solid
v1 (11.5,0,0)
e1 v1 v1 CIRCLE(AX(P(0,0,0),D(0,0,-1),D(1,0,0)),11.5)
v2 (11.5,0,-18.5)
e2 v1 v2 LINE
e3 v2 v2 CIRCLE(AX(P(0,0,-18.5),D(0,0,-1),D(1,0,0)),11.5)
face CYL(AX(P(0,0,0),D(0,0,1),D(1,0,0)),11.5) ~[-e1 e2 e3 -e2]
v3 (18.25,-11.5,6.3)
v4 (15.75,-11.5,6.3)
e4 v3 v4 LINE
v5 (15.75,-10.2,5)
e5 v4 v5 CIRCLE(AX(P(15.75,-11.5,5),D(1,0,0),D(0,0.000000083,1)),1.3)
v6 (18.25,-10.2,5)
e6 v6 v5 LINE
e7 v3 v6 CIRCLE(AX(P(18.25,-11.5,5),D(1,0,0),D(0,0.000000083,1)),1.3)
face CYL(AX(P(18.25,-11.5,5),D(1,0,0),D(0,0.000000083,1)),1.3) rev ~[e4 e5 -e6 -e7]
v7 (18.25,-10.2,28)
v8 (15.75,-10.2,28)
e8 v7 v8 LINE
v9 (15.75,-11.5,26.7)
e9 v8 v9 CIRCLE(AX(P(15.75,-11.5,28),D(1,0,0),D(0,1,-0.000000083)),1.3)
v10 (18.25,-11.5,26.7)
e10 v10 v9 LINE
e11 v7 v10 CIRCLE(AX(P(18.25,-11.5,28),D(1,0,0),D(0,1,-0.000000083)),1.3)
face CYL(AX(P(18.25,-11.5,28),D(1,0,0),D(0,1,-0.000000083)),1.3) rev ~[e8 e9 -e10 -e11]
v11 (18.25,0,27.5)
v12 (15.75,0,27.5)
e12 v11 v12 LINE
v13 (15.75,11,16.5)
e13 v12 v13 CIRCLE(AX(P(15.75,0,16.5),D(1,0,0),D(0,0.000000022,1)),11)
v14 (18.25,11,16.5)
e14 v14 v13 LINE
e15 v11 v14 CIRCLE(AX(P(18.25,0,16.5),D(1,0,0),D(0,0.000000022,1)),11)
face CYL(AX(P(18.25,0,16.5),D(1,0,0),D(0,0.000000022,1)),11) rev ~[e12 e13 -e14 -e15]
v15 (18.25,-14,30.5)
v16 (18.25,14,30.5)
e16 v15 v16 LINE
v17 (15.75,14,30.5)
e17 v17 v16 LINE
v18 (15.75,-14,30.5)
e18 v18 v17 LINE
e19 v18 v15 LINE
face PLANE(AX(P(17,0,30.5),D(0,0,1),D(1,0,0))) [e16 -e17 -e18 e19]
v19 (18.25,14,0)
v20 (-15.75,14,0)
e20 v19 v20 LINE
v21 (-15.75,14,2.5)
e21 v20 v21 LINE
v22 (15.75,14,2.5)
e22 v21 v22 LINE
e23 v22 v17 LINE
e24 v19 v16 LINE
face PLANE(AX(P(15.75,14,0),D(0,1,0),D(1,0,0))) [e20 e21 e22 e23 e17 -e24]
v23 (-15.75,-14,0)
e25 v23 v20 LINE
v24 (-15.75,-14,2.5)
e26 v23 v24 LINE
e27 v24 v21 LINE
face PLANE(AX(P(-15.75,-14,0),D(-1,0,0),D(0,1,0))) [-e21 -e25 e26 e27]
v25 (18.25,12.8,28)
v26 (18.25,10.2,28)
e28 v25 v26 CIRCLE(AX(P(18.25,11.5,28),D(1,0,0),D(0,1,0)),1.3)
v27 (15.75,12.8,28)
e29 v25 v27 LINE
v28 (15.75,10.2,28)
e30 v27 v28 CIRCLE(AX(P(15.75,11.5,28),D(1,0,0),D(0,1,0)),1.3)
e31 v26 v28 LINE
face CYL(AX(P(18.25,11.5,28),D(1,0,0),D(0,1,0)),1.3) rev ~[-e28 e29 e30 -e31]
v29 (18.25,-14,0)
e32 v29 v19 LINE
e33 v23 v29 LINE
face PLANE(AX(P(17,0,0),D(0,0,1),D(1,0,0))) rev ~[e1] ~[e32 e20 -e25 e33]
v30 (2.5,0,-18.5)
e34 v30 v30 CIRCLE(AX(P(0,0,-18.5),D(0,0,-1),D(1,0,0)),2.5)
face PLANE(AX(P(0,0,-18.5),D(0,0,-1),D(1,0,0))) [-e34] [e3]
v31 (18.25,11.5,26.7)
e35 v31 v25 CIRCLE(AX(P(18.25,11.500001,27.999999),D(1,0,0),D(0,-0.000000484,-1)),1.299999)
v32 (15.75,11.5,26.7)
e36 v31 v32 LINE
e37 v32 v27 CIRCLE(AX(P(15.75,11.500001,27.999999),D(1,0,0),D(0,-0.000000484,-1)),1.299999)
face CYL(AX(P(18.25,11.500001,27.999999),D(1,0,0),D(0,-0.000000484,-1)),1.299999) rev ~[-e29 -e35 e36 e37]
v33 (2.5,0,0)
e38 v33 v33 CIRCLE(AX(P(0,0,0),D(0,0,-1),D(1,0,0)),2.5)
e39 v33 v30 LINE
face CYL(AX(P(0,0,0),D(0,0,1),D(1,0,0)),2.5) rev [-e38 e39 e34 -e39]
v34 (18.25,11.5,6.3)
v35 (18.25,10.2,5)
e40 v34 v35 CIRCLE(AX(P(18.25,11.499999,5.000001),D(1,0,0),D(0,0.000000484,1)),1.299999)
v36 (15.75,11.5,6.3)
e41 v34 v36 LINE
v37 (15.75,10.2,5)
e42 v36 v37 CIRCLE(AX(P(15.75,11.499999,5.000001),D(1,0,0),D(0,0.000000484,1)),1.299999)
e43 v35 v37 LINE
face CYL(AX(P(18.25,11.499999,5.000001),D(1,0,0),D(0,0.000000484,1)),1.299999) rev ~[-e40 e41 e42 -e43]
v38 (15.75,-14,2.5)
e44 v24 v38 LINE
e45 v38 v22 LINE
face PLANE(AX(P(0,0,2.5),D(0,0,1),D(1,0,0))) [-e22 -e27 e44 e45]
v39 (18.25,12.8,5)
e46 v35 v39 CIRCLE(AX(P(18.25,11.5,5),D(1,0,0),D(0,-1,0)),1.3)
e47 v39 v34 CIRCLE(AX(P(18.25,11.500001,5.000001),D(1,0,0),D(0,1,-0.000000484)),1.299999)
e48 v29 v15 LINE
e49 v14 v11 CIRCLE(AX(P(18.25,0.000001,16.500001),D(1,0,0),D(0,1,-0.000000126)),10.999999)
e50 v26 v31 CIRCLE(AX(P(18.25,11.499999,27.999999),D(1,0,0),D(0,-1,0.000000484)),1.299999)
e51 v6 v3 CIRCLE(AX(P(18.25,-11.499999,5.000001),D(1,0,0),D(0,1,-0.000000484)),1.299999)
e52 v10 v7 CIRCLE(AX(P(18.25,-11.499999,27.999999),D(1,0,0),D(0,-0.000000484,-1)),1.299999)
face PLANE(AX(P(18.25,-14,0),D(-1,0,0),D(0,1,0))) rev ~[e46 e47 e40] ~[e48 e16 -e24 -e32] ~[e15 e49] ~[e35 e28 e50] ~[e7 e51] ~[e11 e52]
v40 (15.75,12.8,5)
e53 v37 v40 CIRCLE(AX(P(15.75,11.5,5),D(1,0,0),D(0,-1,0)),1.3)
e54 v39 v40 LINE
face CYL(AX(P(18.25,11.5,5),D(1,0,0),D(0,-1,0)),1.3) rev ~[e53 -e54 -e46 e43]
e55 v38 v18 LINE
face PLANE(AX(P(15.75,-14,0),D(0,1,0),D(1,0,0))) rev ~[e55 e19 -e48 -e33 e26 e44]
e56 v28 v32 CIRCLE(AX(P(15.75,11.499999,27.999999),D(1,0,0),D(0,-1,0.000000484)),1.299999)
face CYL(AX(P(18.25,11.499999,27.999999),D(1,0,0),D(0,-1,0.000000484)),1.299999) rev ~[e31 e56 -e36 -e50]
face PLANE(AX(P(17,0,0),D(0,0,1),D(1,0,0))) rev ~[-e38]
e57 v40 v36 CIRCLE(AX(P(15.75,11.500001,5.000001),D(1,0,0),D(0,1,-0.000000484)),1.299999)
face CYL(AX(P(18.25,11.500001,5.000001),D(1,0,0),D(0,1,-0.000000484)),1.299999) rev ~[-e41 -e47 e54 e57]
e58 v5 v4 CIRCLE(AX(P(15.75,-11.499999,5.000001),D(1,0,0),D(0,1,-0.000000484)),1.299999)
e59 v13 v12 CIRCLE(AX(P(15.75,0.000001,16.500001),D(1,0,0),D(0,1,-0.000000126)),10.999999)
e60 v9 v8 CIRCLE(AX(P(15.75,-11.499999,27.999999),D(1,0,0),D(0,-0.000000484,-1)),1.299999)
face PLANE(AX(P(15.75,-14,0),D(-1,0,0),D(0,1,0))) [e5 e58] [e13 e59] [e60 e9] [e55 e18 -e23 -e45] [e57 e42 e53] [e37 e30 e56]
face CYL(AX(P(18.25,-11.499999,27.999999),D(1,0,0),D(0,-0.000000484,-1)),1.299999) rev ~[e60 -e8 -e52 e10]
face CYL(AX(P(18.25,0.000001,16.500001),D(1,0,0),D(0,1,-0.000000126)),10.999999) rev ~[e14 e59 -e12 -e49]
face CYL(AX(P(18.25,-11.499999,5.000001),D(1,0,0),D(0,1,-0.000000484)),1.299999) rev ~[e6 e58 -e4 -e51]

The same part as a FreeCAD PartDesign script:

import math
import FreeCAD as App
import Part
import Sketcher
Q = App.Units.Quantity


def add_polygon(sketch, points):
    """Adds a closed chain of lines whose ends are joined by coincident constraints."""
    first, n = sketch.GeometryCount, len(points)
    for a, b in zip(points, points[1:] + points[:1]):
        sketch.addGeometry(Part.LineSegment(App.Vector(*a, 0), App.Vector(*b, 0)), False)
    for i in range(n):
        sketch.addConstraint(Sketcher.Constraint("Coincident", first + i, 2, first + (i + 1) % n, 1))

doc = App.newDocument("Part")
body = doc.addObject("PartDesign::Body", "Body")

sketch1 = body.newObject("Sketcher::SketchObject", "Sketch")
sketch1.AttachmentSupport = (doc.getObject("XY_Plane"), [""])
sketch1.MapMode = "FlatFace"
add_polygon(sketch1, [(-16, 14), (-16, -14), (16, -14), (16, 14)])
sketch1.addConstraint([
    Sketcher.Constraint("Vertical", 0),
    Sketcher.Constraint("Horizontal", 1),
    Sketcher.Constraint("Vertical", 2),
    Sketcher.Constraint("Horizontal", 3),
    Sketcher.Constraint("Symmetric", 0, 2, 2, 2, -1, 1),
    Sketcher.Constraint("DistanceY", 0, 2, 0, 1, Q("28 mm")),
    Sketcher.Constraint("DistanceX", 1, 1, 1, 2, Q("31.5 mm")),
])
pad1 = body.newObject("PartDesign::Pad", "Pad")
pad1.Profile = sketch1
pad1.Length = 2.5

sketch2 = body.newObject("Sketcher::SketchObject", "Sketch001")
sketch2.AttachmentSupport = (doc.getObject("XY_Plane"), [""])
sketch2.MapMode = "FlatFace"
add_polygon(sketch2, [(15.8, 14), (15.8, -14), (18.2, -14), (18.2, 14)])
sketch2.addConstraint([
    Sketcher.Constraint("Vertical", 0),
    Sketcher.Constraint("Horizontal", 1),
    Sketcher.Constraint("Vertical", 2),
    Sketcher.Constraint("Horizontal", 3),
    Sketcher.Constraint("DistanceY", 0, 2, 0, 1, Q("28 mm")),
    Sketcher.Constraint("DistanceX", 1, 1, 1, 2, Q("2.5 mm")),
    Sketcher.Constraint("DistanceY", 0, 2, -1, 1, Q("14 mm")),
    Sketcher.Constraint("DistanceX", -1, 1, 0, 2, Q("15.75 mm")),
])
pad2 = body.newObject("PartDesign::Pad", "Pad001")
pad2.Profile = sketch2
pad2.Length = 30.5

sketch3 = body.newObject("Sketcher::SketchObject", "Sketch002")
sketch3.AttachmentSupport = (doc.getObject("YZ_Plane"), [""])
sketch3.MapMode = "FlatFace"
sketch3.AttachmentOffset = App.Placement(App.Vector(0, 0, 18.25), App.Rotation())
sketch3.addGeometry([
    Part.ArcOfCircle(Part.Circle(App.Vector(-11.5, 28, 0), App.Vector(0, 0, 1), 1.3), math.radians(0), math.radians(270)),
    Part.ArcOfCircle(Part.Circle(App.Vector(-11.5, 28, 0), App.Vector(0, 0, 1), 1.3), math.radians(-90), math.radians(0)),
    Part.ArcOfCircle(Part.Circle(App.Vector(-11.5, 5, 0), App.Vector(0, 0, 1), 1.3), math.radians(90), math.radians(360)),
    Part.ArcOfCircle(Part.Circle(App.Vector(-11.5, 5, 0), App.Vector(0, 0, 1), 1.3), math.radians(0), math.radians(90)),
    Part.ArcOfCircle(Part.Circle(App.Vector(11.5, 5, 0), App.Vector(0, 0, 1), 1.3), math.radians(90), math.radians(180)),
    Part.ArcOfCircle(Part.Circle(App.Vector(11.5, 5, 0), App.Vector(0, 0, 1), 1.3), math.radians(180), math.radians(360)),
    Part.ArcOfCircle(Part.Circle(App.Vector(11.5, 5, 0), App.Vector(0, 0, 1), 1.3), math.radians(0), math.radians(90)),
    Part.ArcOfCircle(Part.Circle(App.Vector(0, 16.5, 0), App.Vector(0, 0, 1), 11), math.radians(0), math.radians(90)),
    Part.ArcOfCircle(Part.Circle(App.Vector(0, 16.5, 0), App.Vector(0, 0, 1), 11), math.radians(90), math.radians(360)),
    Part.ArcOfCircle(Part.Circle(App.Vector(11.5, 28, 0), App.Vector(0, 0, 1), 1.3), math.radians(180), math.radians(270)),
    Part.ArcOfCircle(Part.Circle(App.Vector(11.5, 28, 0), App.Vector(0, 0, 1), 1.3), math.radians(-90), math.radians(0)),
    Part.ArcOfCircle(Part.Circle(App.Vector(11.5, 28, 0), App.Vector(0, 0, 1), 1.3), math.radians(0), math.radians(180)),
], False)
sketch3.addConstraint([
    Sketcher.Constraint("Tangent", 0, 1, 1, 2),
    Sketcher.Constraint("Coincident", 1, 1, 0, 2),
    Sketcher.Constraint("Tangent", 2, 1, 3, 2),
    Sketcher.Constraint("Coincident", 3, 1, 2, 2),
    Sketcher.Constraint("Tangent", 4, 2, 5, 1),
    Sketcher.Constraint("Tangent", 5, 2, 6, 1),
    Sketcher.Constraint("Tangent", 6, 2, 4, 1),
    Sketcher.Constraint("Tangent", 7, 1, 8, 2),
    Sketcher.Constraint("Coincident", 8, 1, 7, 2),
    Sketcher.Constraint("Tangent", 9, 2, 10, 1),
    Sketcher.Constraint("Tangent", 10, 2, 11, 1),
    Sketcher.Constraint("Tangent", 11, 2, 9, 1),
    Sketcher.Constraint("Equal", 1, 2),
    Sketcher.Constraint("Equal", 3, 4),
    Sketcher.Constraint("Equal", 6, 9),
    Sketcher.Constraint("Symmetric", 2, 3, 4, 3, -2),
    Sketcher.Constraint("Symmetric", 0, 3, 9, 3, -2),
    Sketcher.Constraint("PointOnObject", 7, 3, -2),
    Sketcher.Constraint("PointOnObject", 8, 1, -2),
    Sketcher.Constraint("Horizontal", 11, 3, 0, 1),
    Sketcher.Constraint("Horizontal", 6, 3, 3, 1),
    Sketcher.Constraint("Horizontal", 3, 1, 4, 2),
    Sketcher.Constraint("Horizontal", 4, 2, 5, 2),
    Sketcher.Constraint("Horizontal", 8, 3, 7, 1),
    Sketcher.Constraint("Horizontal", 0, 1, 10, 2),
    Sketcher.Constraint("Horizontal", 10, 2, 11, 2),
    Sketcher.Constraint("Vertical", 1, 3, 2, 3),
    Sketcher.Constraint("Vertical", 3, 3, 1, 1),
    Sketcher.Constraint("Vertical", 1, 1, 2, 1),
    Sketcher.Constraint("Vertical", 11, 3, 6, 2),
    Sketcher.Constraint("Vertical", 6, 2, 9, 2),
    Sketcher.Constraint("Radius", 7, Q("10.999999 mm")),
    Sketcher.Constraint("Radius", 0, Q("1.3 mm")),
    Sketcher.Constraint("DistanceY", -1, 1, 0, 3, Q("28 mm")),
    Sketcher.Constraint("DistanceY", -1, 1, 2, 3, Q("5 mm")),
    Sketcher.Constraint("DistanceX", 3, 3, 4, 3, Q("22.999999 mm")),
    Sketcher.Constraint("DistanceY", -1, 1, 7, 3, Q("16.500001 mm")),
])
pocket1 = body.newObject("PartDesign::Pocket", "Pocket")
pocket1.Profile = sketch3
pocket1.Length = 2.5

sketch4 = body.newObject("Sketcher::SketchObject", "Sketch003")
sketch4.AttachmentSupport = (doc.getObject("XY_Plane"), [""])
sketch4.MapMode = "FlatFace"
sketch4.addGeometry([
    Part.Circle(App.Vector(0, 0, 0), App.Vector(0, 0, 1), 11.5),
    Part.Circle(App.Vector(0, 0, 0), App.Vector(0, 0, 1), 2.5),
], False)
sketch4.addConstraint([
    Sketcher.Constraint("Coincident", 0, 3, -1, 1),
    Sketcher.Constraint("Coincident", 1, 3, -1, 1),
    Sketcher.Constraint("Diameter", 0, Q("23 mm")),
    Sketcher.Constraint("Diameter", 1, Q("5 mm")),
])
pad3 = body.newObject("PartDesign::Pad", "Pad002")
pad3.Profile = sketch4
pad3.Length = 18.5
pad3.Reversed = True

doc.recompute()
